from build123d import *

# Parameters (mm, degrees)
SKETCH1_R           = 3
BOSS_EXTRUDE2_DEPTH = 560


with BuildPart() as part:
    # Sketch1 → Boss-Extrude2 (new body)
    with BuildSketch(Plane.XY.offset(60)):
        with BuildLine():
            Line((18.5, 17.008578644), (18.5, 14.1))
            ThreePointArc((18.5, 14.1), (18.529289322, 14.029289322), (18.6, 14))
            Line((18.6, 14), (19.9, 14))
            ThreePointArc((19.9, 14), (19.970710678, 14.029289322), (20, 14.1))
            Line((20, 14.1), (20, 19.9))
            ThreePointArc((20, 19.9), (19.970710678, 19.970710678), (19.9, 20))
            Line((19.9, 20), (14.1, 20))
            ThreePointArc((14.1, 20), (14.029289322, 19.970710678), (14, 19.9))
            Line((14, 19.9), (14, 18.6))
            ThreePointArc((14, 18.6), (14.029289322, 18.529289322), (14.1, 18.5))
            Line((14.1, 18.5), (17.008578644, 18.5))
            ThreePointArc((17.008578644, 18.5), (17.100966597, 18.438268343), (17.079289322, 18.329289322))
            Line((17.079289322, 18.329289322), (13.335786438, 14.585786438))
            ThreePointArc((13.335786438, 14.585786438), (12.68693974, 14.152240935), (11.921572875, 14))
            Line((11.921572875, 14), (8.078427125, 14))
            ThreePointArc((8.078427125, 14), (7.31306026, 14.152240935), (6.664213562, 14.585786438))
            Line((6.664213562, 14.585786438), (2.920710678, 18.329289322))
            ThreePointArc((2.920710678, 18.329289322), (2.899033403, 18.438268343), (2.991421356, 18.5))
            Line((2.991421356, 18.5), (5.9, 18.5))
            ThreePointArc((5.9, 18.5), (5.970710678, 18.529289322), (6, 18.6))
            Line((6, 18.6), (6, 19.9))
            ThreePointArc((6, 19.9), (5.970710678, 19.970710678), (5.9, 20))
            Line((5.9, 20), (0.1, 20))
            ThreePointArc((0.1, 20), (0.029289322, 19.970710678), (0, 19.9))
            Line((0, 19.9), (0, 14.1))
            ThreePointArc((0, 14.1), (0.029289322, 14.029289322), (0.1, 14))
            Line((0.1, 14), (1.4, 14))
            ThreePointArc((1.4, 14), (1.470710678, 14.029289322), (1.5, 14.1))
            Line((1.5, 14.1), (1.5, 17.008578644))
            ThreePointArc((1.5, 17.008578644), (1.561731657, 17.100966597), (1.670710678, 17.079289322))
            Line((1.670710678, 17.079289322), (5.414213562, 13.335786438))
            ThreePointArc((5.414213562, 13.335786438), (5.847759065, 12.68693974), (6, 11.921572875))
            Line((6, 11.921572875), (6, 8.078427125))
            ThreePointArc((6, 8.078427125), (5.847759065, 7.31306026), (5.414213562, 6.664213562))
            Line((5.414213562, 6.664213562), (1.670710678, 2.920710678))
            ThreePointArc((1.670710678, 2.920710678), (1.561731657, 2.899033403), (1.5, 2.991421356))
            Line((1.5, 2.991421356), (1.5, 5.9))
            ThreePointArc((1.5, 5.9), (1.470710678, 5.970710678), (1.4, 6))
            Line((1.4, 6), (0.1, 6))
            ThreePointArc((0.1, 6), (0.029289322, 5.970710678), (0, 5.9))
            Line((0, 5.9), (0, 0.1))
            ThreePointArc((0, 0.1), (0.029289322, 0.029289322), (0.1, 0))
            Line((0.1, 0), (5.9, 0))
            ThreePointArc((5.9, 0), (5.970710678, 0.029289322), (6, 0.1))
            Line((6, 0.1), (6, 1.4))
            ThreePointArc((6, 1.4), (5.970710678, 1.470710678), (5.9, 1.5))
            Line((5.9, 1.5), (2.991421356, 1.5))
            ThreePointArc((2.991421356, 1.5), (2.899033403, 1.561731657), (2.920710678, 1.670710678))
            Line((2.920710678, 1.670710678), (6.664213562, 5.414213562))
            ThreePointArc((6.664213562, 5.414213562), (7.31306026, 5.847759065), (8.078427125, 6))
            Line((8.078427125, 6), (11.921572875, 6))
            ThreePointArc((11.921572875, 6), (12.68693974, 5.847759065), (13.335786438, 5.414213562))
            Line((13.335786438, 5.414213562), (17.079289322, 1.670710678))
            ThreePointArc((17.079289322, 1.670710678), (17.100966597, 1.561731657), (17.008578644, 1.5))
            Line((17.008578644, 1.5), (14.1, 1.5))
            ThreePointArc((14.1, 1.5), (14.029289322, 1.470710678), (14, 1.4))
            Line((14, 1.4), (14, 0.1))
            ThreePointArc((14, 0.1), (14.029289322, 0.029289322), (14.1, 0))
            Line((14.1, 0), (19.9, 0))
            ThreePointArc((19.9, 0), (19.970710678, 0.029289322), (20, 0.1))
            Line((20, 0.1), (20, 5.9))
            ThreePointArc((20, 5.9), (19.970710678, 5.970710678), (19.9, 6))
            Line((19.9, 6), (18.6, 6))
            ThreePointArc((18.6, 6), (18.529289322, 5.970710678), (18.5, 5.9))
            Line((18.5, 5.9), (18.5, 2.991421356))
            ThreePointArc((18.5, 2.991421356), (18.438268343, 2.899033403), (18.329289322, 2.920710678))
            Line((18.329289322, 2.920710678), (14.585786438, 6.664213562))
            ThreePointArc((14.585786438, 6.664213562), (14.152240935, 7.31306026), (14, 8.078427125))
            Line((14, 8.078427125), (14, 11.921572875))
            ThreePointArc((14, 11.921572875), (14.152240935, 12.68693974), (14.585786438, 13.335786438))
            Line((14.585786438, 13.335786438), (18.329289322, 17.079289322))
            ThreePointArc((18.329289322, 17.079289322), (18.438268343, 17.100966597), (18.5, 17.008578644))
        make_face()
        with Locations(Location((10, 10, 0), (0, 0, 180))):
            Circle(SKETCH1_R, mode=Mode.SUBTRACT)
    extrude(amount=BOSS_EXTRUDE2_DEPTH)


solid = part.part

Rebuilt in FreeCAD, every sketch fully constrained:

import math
import FreeCAD as App
import Part
import Sketcher
from FreeCAD import Vector
Q = App.Units.Quantity

doc = App.newDocument("Part")
body = doc.addObject("PartDesign::Body", "Body")

# Sketch on XY plane
sketch1 = body.newObject("Sketcher::SketchObject", "Sketch")
sketch1.AttachmentSupport = (doc.getObject("XY_Plane"), [""])
sketch1.MapMode = "FlatFace"
sketch1.AttachmentOffset = App.Placement(Vector(0, 0, 60), App.Rotation())
sketch1.addGeometry([
    Part.LineSegment(Vector(18.5, 17.01, 0), Vector(18.5, 14.1, 0)),  # 0
    Part.ArcOfCircle(Part.Circle(Vector(18.6, 14.1, 0), Vector(0, 0, 1), 0.1), math.radians(180), math.radians(270)),  # 1
    Part.LineSegment(Vector(18.6, 14, 0), Vector(19.9, 14, 0)),  # 2
    Part.ArcOfCircle(Part.Circle(Vector(19.9, 14.1, 0), Vector(0, 0, 1), 0.1), math.radians(-90), math.radians(0)),  # 3
    Part.LineSegment(Vector(20, 14.1, 0), Vector(20, 19.9, 0)),  # 4
    Part.ArcOfCircle(Part.Circle(Vector(19.9, 19.9, 0), Vector(0, 0, 1), 0.1), math.radians(0), math.radians(90)),  # 5
    Part.LineSegment(Vector(19.9, 20, 0), Vector(14.1, 20, 0)),  # 6
    Part.ArcOfCircle(Part.Circle(Vector(14.1, 19.9, 0), Vector(0, 0, 1), 0.1), math.radians(90), math.radians(180)),  # 7
    Part.LineSegment(Vector(14, 19.9, 0), Vector(14, 18.6, 0)),  # 8
    Part.ArcOfCircle(Part.Circle(Vector(14.1, 18.6, 0), Vector(0, 0, 1), 0.1), math.radians(180), math.radians(270)),  # 9
    Part.LineSegment(Vector(14.1, 18.5, 0), Vector(17.01, 18.5, 0)),  # 10
    Part.ArcOfCircle(Part.Circle(Vector(17.01, 18.4, 0), Vector(0, 0, 1), 0.1), math.radians(-45), math.radians(90)),  # 11
    Part.LineSegment(Vector(17.08, 18.33, 0), Vector(13.34, 14.59, 0)),  # 12
    Part.ArcOfCircle(Part.Circle(Vector(11.92, 16, 0), Vector(0, 0, 1), 2), math.radians(-90), math.radians(-45)),  # 13
    Part.LineSegment(Vector(11.92, 14, 0), Vector(8.08, 14, 0)),  # 14
    Part.ArcOfCircle(Part.Circle(Vector(8.08, 16, 0), Vector(0, 0, 1), 2), math.radians(-135), math.radians(-90)),  # 15
    Part.LineSegment(Vector(6.66, 14.59, 0), Vector(2.92, 18.33, 0)),  # 16
    Part.ArcOfCircle(Part.Circle(Vector(2.99, 18.4, 0), Vector(0, 0, 1), 0.1), math.radians(90), math.radians(225)),  # 17
    Part.LineSegment(Vector(2.99, 18.5, 0), Vector(5.9, 18.5, 0)),  # 18
    Part.ArcOfCircle(Part.Circle(Vector(5.9, 18.6, 0), Vector(0, 0, 1), 0.1), math.radians(-90), math.radians(0)),  # 19
    Part.LineSegment(Vector(6, 18.6, 0), Vector(6, 19.9, 0)),  # 20
    Part.ArcOfCircle(Part.Circle(Vector(5.9, 19.9, 0), Vector(0, 0, 1), 0.1), math.radians(0), math.radians(90)),  # 21
    Part.LineSegment(Vector(5.9, 20, 0), Vector(0.1, 20, 0)),  # 22
    Part.ArcOfCircle(Part.Circle(Vector(0.1, 19.9, 0), Vector(0, 0, 1), 0.1), math.radians(90), math.radians(180)),  # 23
    Part.LineSegment(Vector(0, 19.9, 0), Vector(0, 14.1, 0)),  # 24
    Part.ArcOfCircle(Part.Circle(Vector(0.1, 14.1, 0), Vector(0, 0, 1), 0.1), math.radians(180), math.radians(270)),  # 25
    Part.LineSegment(Vector(0.1, 14, 0), Vector(1.4, 14, 0)),  # 26
    Part.ArcOfCircle(Part.Circle(Vector(1.4, 14.1, 0), Vector(0, 0, 1), 0.1), math.radians(-90), math.radians(0)),  # 27
    Part.LineSegment(Vector(1.5, 14.1, 0), Vector(1.5, 17.01, 0)),  # 28
    Part.ArcOfCircle(Part.Circle(Vector(1.6, 17.01, 0), Vector(0, 0, 1), 0.1), math.radians(45), math.radians(180)),  # 29
    Part.LineSegment(Vector(1.67, 17.08, 0), Vector(5.41, 13.34, 0)),  # 30
    Part.ArcOfCircle(Part.Circle(Vector(4, 11.92, 0), Vector(0, 0, 1), 2), math.radians(0), math.radians(45)),  # 31
    Part.LineSegment(Vector(6, 11.92, 0), Vector(6, 8.08, 0)),  # 32
    Part.ArcOfCircle(Part.Circle(Vector(4, 8.08, 0), Vector(0, 0, 1), 2), math.radians(-45), math.radians(0)),  # 33
    Part.LineSegment(Vector(5.41, 6.66, 0), Vector(1.67, 2.92, 0)),  # 34
    Part.ArcOfCircle(Part.Circle(Vector(1.6, 2.99, 0), Vector(0, 0, 1), 0.1), math.radians(180), math.radians(315)),  # 35
    Part.LineSegment(Vector(1.5, 2.99, 0), Vector(1.5, 5.9, 0)),  # 36
    Part.ArcOfCircle(Part.Circle(Vector(1.4, 5.9, 0), Vector(0, 0, 1), 0.1), math.radians(0), math.radians(90)),  # 37
    Part.LineSegment(Vector(1.4, 6, 0), Vector(0.1, 6, 0)),  # 38
    Part.ArcOfCircle(Part.Circle(Vector(0.1, 5.9, 0), Vector(0, 0, 1), 0.1), math.radians(90), math.radians(180)),  # 39
    Part.LineSegment(Vector(0, 5.9, 0), Vector(0, 0.1, 0)),  # 40
    Part.ArcOfCircle(Part.Circle(Vector(0.1, 0.1, 0), Vector(0, 0, 1), 0.1), math.radians(180), math.radians(270)),  # 41
    Part.LineSegment(Vector(0.1, 0, 0), Vector(5.9, 0, 0)),  # 42
    Part.ArcOfCircle(Part.Circle(Vector(5.9, 0.1, 0), Vector(0, 0, 1), 0.1), math.radians(-90), math.radians(0)),  # 43
    Part.LineSegment(Vector(6, 0.1, 0), Vector(6, 1.4, 0)),  # 44
    Part.ArcOfCircle(Part.Circle(Vector(5.9, 1.4, 0), Vector(0, 0, 1), 0.1), math.radians(0), math.radians(90)),  # 45
    Part.LineSegment(Vector(5.9, 1.5, 0), Vector(2.99, 1.5, 0)),  # 46
    Part.ArcOfCircle(Part.Circle(Vector(2.99, 1.6, 0), Vector(0, 0, 1), 0.1), math.radians(135), math.radians(270)),  # 47
    Part.LineSegment(Vector(2.92, 1.67, 0), Vector(6.66, 5.41, 0)),  # 48
    Part.ArcOfCircle(Part.Circle(Vector(8.08, 4, 0), Vector(0, 0, 1), 2), math.radians(90), math.radians(135)),  # 49
    Part.LineSegment(Vector(8.08, 6, 0), Vector(11.92, 6, 0)),  # 50
    Part.ArcOfCircle(Part.Circle(Vector(11.92, 4, 0), Vector(0, 0, 1), 2), math.radians(45), math.radians(90)),  # 51
    Part.LineSegment(Vector(13.34, 5.41, 0), Vector(17.08, 1.67, 0)),  # 52
    Part.ArcOfCircle(Part.Circle(Vector(17.01, 1.6, 0), Vector(0, 0, 1), 0.1), math.radians(-90), math.radians(45)),  # 53
    Part.LineSegment(Vector(17.01, 1.5, 0), Vector(14.1, 1.5, 0)),  # 54
    Part.ArcOfCircle(Part.Circle(Vector(14.1, 1.4, 0), Vector(0, 0, 1), 0.1), math.radians(90), math.radians(180)),  # 55
    Part.LineSegment(Vector(14, 1.4, 0), Vector(14, 0.1, 0)),  # 56
    Part.ArcOfCircle(Part.Circle(Vector(14.1, 0.1, 0), Vector(0, 0, 1), 0.1), math.radians(180), math.radians(270)),  # 57
    Part.LineSegment(Vector(14.1, 0, 0), Vector(19.9, 0, 0)),  # 58
    Part.ArcOfCircle(Part.Circle(Vector(19.9, 0.1, 0), Vector(0, 0, 1), 0.1), math.radians(-90), math.radians(0)),  # 59
    Part.LineSegment(Vector(20, 0.1, 0), Vector(20, 5.9, 0)),  # 60
    Part.ArcOfCircle(Part.Circle(Vector(19.9, 5.9, 0), Vector(0, 0, 1), 0.1), math.radians(0), math.radians(90)),  # 61
    Part.LineSegment(Vector(19.9, 6, 0), Vector(18.6, 6, 0)),  # 62
    Part.ArcOfCircle(Part.Circle(Vector(18.6, 5.9, 0), Vector(0, 0, 1), 0.1), math.radians(90), math.radians(180)),  # 63
    Part.LineSegment(Vector(18.5, 5.9, 0), Vector(18.5, 2.99, 0)),  # 64
    Part.ArcOfCircle(Part.Circle(Vector(18.4, 2.99, 0), Vector(0, 0, 1), 0.1), math.radians(-135), math.radians(0)),  # 65
    Part.LineSegment(Vector(18.33, 2.92, 0), Vector(14.59, 6.66, 0)),  # 66
    Part.ArcOfCircle(Part.Circle(Vector(16, 8.08, 0), Vector(0, 0, 1), 2), math.radians(180), math.radians(225)),  # 67
    Part.LineSegment(Vector(14, 8.08, 0), Vector(14, 11.92, 0)),  # 68
    Part.ArcOfCircle(Part.Circle(Vector(16, 11.92, 0), Vector(0, 0, 1), 2), math.radians(135), math.radians(180)),  # 69
    Part.LineSegment(Vector(14.59, 13.34, 0), Vector(18.33, 17.08, 0)),  # 70
    Part.ArcOfCircle(Part.Circle(Vector(18.4, 17.01, 0), Vector(0, 0, 1), 0.1), math.radians(0), math.radians(135)),  # 71
    Part.Circle(Vector(10, 10, 0), Vector(0, 0, 1), 3),  # 72
], False)
sketch1.addConstraint([
    Sketcher.Constraint("Tangent", 0, 2, 1, 1),
    Sketcher.Constraint("Tangent", 1, 2, 2, 1),
    Sketcher.Constraint("Tangent", 2, 2, 3, 1),
    Sketcher.Constraint("Tangent", 3, 2, 4, 1),
    Sketcher.Constraint("Tangent", 4, 2, 5, 1),
    Sketcher.Constraint("Tangent", 5, 2, 6, 1),
    Sketcher.Constraint("Tangent", 6, 2, 7, 1),
    Sketcher.Constraint("Tangent", 7, 2, 8, 1),
    Sketcher.Constraint("Tangent", 8, 2, 9, 1),
    Sketcher.Constraint("Tangent", 9, 2, 10, 1),
    Sketcher.Constraint("Tangent", 10, 2, 11, 2),
    Sketcher.Constraint("Tangent", 11, 1, 12, 1),
    Sketcher.Constraint("Tangent", 12, 2, 13, 2),
    Sketcher.Constraint("Tangent", 13, 1, 14, 1),
    Sketcher.Constraint("Tangent", 14, 2, 15, 2),
    Sketcher.Constraint("Tangent", 15, 1, 16, 1),
    Sketcher.Constraint("Tangent", 16, 2, 17, 2),
    Sketcher.Constraint("Tangent", 17, 1, 18, 1),
    Sketcher.Constraint("Tangent", 18, 2, 19, 1),
    Sketcher.Constraint("Tangent", 19, 2, 20, 1),
    Sketcher.Constraint("Tangent", 20, 2, 21, 1),
    Sketcher.Constraint("Tangent", 21, 2, 22, 1),
    Sketcher.Constraint("Tangent", 22, 2, 23, 1),
    Sketcher.Constraint("Tangent", 23, 2, 24, 1),
    Sketcher.Constraint("Tangent", 24, 2, 25, 1),
    Sketcher.Constraint("Tangent", 25, 2, 26, 1),
    Sketcher.Constraint("Tangent", 26, 2, 27, 1),
    Sketcher.Constraint("Tangent", 27, 2, 28, 1),
    Sketcher.Constraint("Tangent", 28, 2, 29, 2),
    Sketcher.Constraint("Tangent", 29, 1, 30, 1),
    Sketcher.Constraint("Tangent", 30, 2, 31, 2),
    Sketcher.Constraint("Tangent", 31, 1, 32, 1),
    Sketcher.Constraint("Tangent", 32, 2, 33, 2),
    Sketcher.Constraint("Tangent", 33, 1, 34, 1),
    Sketcher.Constraint("Tangent", 34, 2, 35, 2),
    Sketcher.Constraint("Tangent", 35, 1, 36, 1),
    Sketcher.Constraint("Tangent", 36, 2, 37, 1),
    Sketcher.Constraint("Tangent", 37, 2, 38, 1),
    Sketcher.Constraint("Tangent", 38, 2, 39, 1),
    Sketcher.Constraint("Tangent", 39, 2, 40, 1),
    Sketcher.Constraint("Tangent", 40, 2, 41, 1),
    Sketcher.Constraint("Tangent", 41, 2, 42, 1),
    Sketcher.Constraint("Tangent", 42, 2, 43, 1),
    Sketcher.Constraint("Tangent", 43, 2, 44, 1),
    Sketcher.Constraint("Tangent", 44, 2, 45, 1),
    Sketcher.Constraint("Tangent", 45, 2, 46, 1),
    Sketcher.Constraint("Tangent", 46, 2, 47, 2),
    Sketcher.Constraint("Tangent", 47, 1, 48, 1),
    Sketcher.Constraint("Tangent", 48, 2, 49, 2),
    Sketcher.Constraint("Tangent", 49, 1, 50, 1),
    Sketcher.Constraint("Tangent", 50, 2, 51, 2),
    Sketcher.Constraint("Tangent", 51, 1, 52, 1),
    Sketcher.Constraint("Tangent", 52, 2, 53, 2),
    Sketcher.Constraint("Tangent", 53, 1, 54, 1),
    Sketcher.Constraint("Tangent", 54, 2, 55, 1),
    Sketcher.Constraint("Tangent", 55, 2, 56, 1),
    Sketcher.Constraint("Tangent", 56, 2, 57, 1),
    Sketcher.Constraint("Tangent", 57, 2, 58, 1),
    Sketcher.Constraint("Tangent", 58, 2, 59, 1),
    Sketcher.Constraint("Tangent", 59, 2, 60, 1),
    Sketcher.Constraint("Tangent", 60, 2, 61, 1),
    Sketcher.Constraint("Tangent", 61, 2, 62, 1),
    Sketcher.Constraint("Tangent", 62, 2, 63, 1),
    Sketcher.Constraint("Tangent", 63, 2, 64, 1),
    Sketcher.Constraint("Tangent", 64, 2, 65, 2),
    Sketcher.Constraint("Tangent", 65, 1, 66, 1),
    Sketcher.Constraint("Tangent", 66, 2, 67, 2),
    Sketcher.Constraint("Tangent", 67, 1, 68, 1),
    Sketcher.Constraint("Tangent", 68, 2, 69, 2),
    Sketcher.Constraint("Tangent", 69, 1, 70, 1),
    Sketcher.Constraint("Tangent", 70, 2, 71, 2),
    Sketcher.Constraint("Tangent", 71, 1, 0, 1),
    Sketcher.Constraint("Vertical", 0),
    Sketcher.Constraint("Horizontal", 2),
    Sketcher.Constraint("Vertical", 4),
    Sketcher.Constraint("Horizontal", 6),
    Sketcher.Constraint("Vertical", 8),
    Sketcher.Constraint("Horizontal", 10),
    Sketcher.Constraint("Horizontal", 14),
    Sketcher.Constraint("Horizontal", 18),
    Sketcher.Constraint("Vertical", 20),
    Sketcher.Constraint("Horizontal", 22),
    Sketcher.Constraint("Vertical", 24),
    Sketcher.Constraint("Horizontal", 26),
    Sketcher.Constraint("Vertical", 28),
    Sketcher.Constraint("Vertical", 32),
    Sketcher.Constraint("Vertical", 36),
    Sketcher.Constraint("Horizontal", 38),
    Sketcher.Constraint("Vertical", 40),
    Sketcher.Constraint("Horizontal", 42),
    Sketcher.Constraint("Vertical", 44),
    Sketcher.Constraint("Horizontal", 46),
    Sketcher.Constraint("Horizontal", 50),
    Sketcher.Constraint("Horizontal", 54),
    Sketcher.Constraint("Vertical", 56),
    Sketcher.Constraint("Horizontal", 58),
    Sketcher.Constraint("Vertical", 60),
    Sketcher.Constraint("Horizontal", 62),
    Sketcher.Constraint("Vertical", 64),
    Sketcher.Constraint("Vertical", 68),
    Sketcher.Constraint("Equal", 1, 3),
    Sketcher.Constraint("Equal", 3, 5),
    Sketcher.Constraint("Equal", 5, 7),
    Sketcher.Constraint("Equal", 7, 9),
    Sketcher.Constraint("Equal", 9, 11),
    Sketcher.Constraint("Equal", 13, 15),
    Sketcher.Constraint("Equal", 11, 17),
    Sketcher.Constraint("Equal", 17, 19),
    Sketcher.Constraint("Equal", 19, 21),
    Sketcher.Constraint("Equal", 21, 23),
    Sketcher.Constraint("Equal", 23, 25),
    Sketcher.Constraint("Equal", 25, 27),
    Sketcher.Constraint("Equal", 27, 29),
    Sketcher.Constraint("Equal", 15, 31),
    Sketcher.Constraint("Equal", 31, 33),
    Sketcher.Constraint("Equal", 29, 35),
    Sketcher.Constraint("Equal", 35, 37),
    Sketcher.Constraint("Equal", 37, 39),
    Sketcher.Constraint("Equal", 39, 41),
    Sketcher.Constraint("Equal", 41, 43),
    Sketcher.Constraint("Equal", 43, 45),
    Sketcher.Constraint("Equal", 45, 47),
    Sketcher.Constraint("Equal", 33, 49),
    Sketcher.Constraint("Equal", 49, 51),
    Sketcher.Constraint("Equal", 47, 53),
    Sketcher.Constraint("Equal", 53, 55),
    Sketcher.Constraint("Equal", 55, 57),
    Sketcher.Constraint("Equal", 57, 59),
    Sketcher.Constraint("Equal", 59, 61),
    Sketcher.Constraint("Equal", 61, 63),
    Sketcher.Constraint("Equal", 63, 65),
    Sketcher.Constraint("Equal", 51, 67),
    Sketcher.Constraint("Equal", 67, 69),
    Sketcher.Constraint("Equal", 65, 71),
    Sketcher.Constraint("PointOnObject", 23, 2, -2),
    Sketcher.Constraint("PointOnObject", 39, 2, -2),
    Sketcher.Constraint("PointOnObject", 41, 2, -1),
    Sketcher.Constraint("PointOnObject", 57, 2, -1),
    Sketcher.Constraint("Perpendicular", 12, 16),
    Sketcher.Constraint("Parallel", 16, 30),
    Sketcher.Constraint("Perpendicular", 30, 34),
    Sketcher.Constraint("Parallel", 34, 48),
    Sketcher.Constraint("Perpendicular", 48, 52),
    Sketcher.Constraint("Parallel", 52, 66),
    Sketcher.Constraint("Perpendicular", 66, 70),
    Sketcher.Constraint("Horizontal", 11, 3, 17, 3),
    Sketcher.Constraint("Horizontal", 7, 3, 21, 3),
    Sketcher.Constraint("Horizontal", 3, 3, 25, 3),
    Sketcher.Constraint("Horizontal", 47, 3, 53, 3),
    Sketcher.Constraint("Horizontal", 39, 3, 61, 3),
    Sketcher.Constraint("Horizontal", 35, 3, 65, 3),
    Sketcher.Constraint("Horizontal", 33, 3, 67, 3),
    Sketcher.Constraint("Horizontal", 31, 3, 69, 3),
    Sketcher.Constraint("Horizontal", 29, 3, 71, 3),
    Sketcher.Constraint("Horizontal", 2, 2, 13, 1),
    Sketcher.Constraint("Horizontal", 12, 2, 15, 1),
    Sketcher.Constraint("Horizontal", 38, 2, 49, 1),
    Sketcher.Constraint("Vertical", 29, 3, 35, 3),
    Sketcher.Constraint("Vertical", 21, 3, 43, 3),
    Sketcher.Constraint("Vertical", 17, 3, 47, 3),
    Sketcher.Constraint("Vertical", 15, 3, 49, 3),
    Sketcher.Constraint("Vertical", 13, 3, 51, 3),
    Sketcher.Constraint("Vertical", 9, 3, 55, 3),
    Sketcher.Constraint("Vertical", 5, 3, 59, 3),
    Sketcher.Constraint("Vertical", 20, 2, 31, 1),
    Sketcher.Constraint("Vertical", 56, 2, 67, 1),
    Sketcher.Constraint("Equal", 10, 18),
    Sketcher.Constraint("Equal", 6, 22),
    Sketcher.Constraint("Equal", 54, 0),
    Sketcher.Constraint("Equal", 58, 4),
    Sketcher.Constraint("Equal", 62, 8),
    Sketcher.Constraint("Equal", 50, 32),
    Sketcher.Constraint("Equal", 28, 36),
    Sketcher.Constraint("Equal", 24, 40),
    Sketcher.Constraint("Diameter", 72, Q("6 mm")),
    Sketcher.Constraint("Radius", 13, Q("2 mm")),
    Sketcher.Constraint("Radius", 1, Q("0.1 mm")),
    Sketcher.Constraint("DistanceX", 2, 1, 2, 2, Q("1.3 mm")),
    Sketcher.Constraint("DistanceX", 6, 2, 6, 1, Q("5.8 mm")),
    Sketcher.Constraint("DistanceY", -1, 1, 13, 3, Q("16 mm")),
    Sketcher.Constraint("DistanceX", -1, 1, 72, 3, Q("10 mm")),
    Sketcher.Constraint("DistanceY", -1, 1, 72, 3, Q("10 mm")),
    Sketcher.Constraint("DistanceX", 10, 1, 10, 2, Q("2.908579 mm")),
])
pad1 = body.newObject("PartDesign::Pad", "Pad")
pad1.Profile = sketch1
pad1.Length = 560

doc.recompute()
